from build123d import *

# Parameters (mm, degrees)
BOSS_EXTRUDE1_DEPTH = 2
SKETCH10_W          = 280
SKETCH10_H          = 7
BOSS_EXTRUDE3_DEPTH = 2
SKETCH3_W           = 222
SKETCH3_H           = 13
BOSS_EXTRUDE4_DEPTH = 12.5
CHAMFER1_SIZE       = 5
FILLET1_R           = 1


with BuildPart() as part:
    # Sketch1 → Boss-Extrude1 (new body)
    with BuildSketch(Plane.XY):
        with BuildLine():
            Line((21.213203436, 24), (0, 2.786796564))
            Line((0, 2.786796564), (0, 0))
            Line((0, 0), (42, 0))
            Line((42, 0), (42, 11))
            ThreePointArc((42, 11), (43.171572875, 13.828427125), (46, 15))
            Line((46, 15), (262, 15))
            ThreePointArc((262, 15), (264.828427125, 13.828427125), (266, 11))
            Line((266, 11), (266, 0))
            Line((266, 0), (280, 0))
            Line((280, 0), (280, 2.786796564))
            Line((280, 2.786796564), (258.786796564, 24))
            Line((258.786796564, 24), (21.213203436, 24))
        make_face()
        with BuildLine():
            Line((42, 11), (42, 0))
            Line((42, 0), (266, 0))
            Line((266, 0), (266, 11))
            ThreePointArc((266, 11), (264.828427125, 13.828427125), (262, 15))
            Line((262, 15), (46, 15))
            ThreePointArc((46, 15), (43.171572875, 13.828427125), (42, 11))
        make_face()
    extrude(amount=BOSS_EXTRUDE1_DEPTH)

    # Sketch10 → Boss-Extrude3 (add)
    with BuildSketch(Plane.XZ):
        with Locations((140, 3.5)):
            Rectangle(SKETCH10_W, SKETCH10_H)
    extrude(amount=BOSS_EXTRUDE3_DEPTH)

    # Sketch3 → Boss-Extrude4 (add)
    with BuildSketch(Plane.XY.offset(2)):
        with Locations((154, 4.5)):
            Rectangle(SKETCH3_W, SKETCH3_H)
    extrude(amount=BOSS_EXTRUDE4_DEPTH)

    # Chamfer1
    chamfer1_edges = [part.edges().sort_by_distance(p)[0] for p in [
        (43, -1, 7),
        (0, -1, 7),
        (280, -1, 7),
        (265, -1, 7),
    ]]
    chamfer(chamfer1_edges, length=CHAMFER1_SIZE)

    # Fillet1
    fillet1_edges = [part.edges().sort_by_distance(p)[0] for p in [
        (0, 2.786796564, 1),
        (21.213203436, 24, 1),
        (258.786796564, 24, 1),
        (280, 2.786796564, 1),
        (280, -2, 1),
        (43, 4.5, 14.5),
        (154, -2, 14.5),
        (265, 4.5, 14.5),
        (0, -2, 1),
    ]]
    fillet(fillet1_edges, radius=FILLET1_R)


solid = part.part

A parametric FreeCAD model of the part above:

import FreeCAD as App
import Part
import Sketcher

V = App.Vector


def edges_at(feature, points):
    """Names of the edges that pass closest to the given points."""
    edges = feature.Shape.Edges
    near = lambda p: min(range(len(edges)), key=lambda i: edges[i].distToShape(Part.Vertex(*p))[0])
    return sorted({f"Edge{near(p) + 1}" for p in points})

doc = App.newDocument("Part")
body = doc.addObject("PartDesign::Body", "Body")

# Sketch on XY plane
sketch1 = body.newObject("Sketcher::SketchObject", "Sketch")
sketch1.AttachmentSupport = (doc.getObject("XY_Plane"), [""])
sketch1.MapMode = "FlatFace"
sketch1.addGeometry([
    Part.LineSegment(V(21.2, 24, 0), V(0, 2.8, 0)),  # 0
    Part.LineSegment(V(0, 2.8, 0), V(0, 0, 0)),  # 1
    Part.LineSegment(V(0, 0, 0), V(280, 0, 0)),  # 2
    Part.LineSegment(V(280, 0, 0), V(280, 2.8, 0)),  # 3
    Part.LineSegment(V(280, 2.8, 0), V(258.8, 24, 0)),  # 4
    Part.LineSegment(V(258.8, 24, 0), V(21.2, 24, 0)),  # 5
], False)
sketch1.addConstraint([
    Sketcher.Constraint("Coincident", 0, 2, 1, 1),
    Sketcher.Constraint("Coincident", 1, 2, 2, 1),
    Sketcher.Constraint("Coincident", 2, 2, 3, 1),
    Sketcher.Constraint("Coincident", 3, 2, 4, 1),
    Sketcher.Constraint("Coincident", 4, 2, 5, 1),
    Sketcher.Constraint("Coincident", 5, 2, 0, 1),
    Sketcher.Constraint("Vertical", 1),
    Sketcher.Constraint("Horizontal", 2),
    Sketcher.Constraint("Vertical", 3),
    Sketcher.Constraint("Horizontal", 5),
    Sketcher.Constraint("Coincident", 1, 2, -1, 1),
    Sketcher.Constraint("Perpendicular", 0, 4),
    Sketcher.Constraint("Horizontal", 0, 2, 3, 2),
    Sketcher.Constraint("Equal", 0, 4),
    Sketcher.Constraint("DistanceX", 2, 1, 2, 2, 280.0),
    Sketcher.Constraint("Distance", 0, 30.0),
    Sketcher.Constraint("DistanceY", -1, 1, 4, 2, 24.0),
])
pad1 = body.newObject("PartDesign::Pad", "Pad")
pad1.Profile = sketch1
pad1.Length = 2

# Sketch on XZ plane
sketch2 = body.newObject("Sketcher::SketchObject", "Sketch001")
sketch2.AttachmentSupport = (doc.getObject("XZ_Plane"), [""])
sketch2.MapMode = "FlatFace"
sketch2.addGeometry([
    Part.LineSegment(V(0, 7, 0), V(0, 0, 0)),
    Part.LineSegment(V(0, 0, 0), V(280, 0, 0)),
    Part.LineSegment(V(280, 0, 0), V(280, 7, 0)),
    Part.LineSegment(V(280, 7, 0), V(0, 7, 0)),
], False)
sketch2.addConstraint([
    Sketcher.Constraint("Coincident", 0, 2, 1, 1),
    Sketcher.Constraint("Coincident", 1, 2, 2, 1),
    Sketcher.Constraint("Coincident", 2, 2, 3, 1),
    Sketcher.Constraint("Coincident", 3, 2, 0, 1),
    Sketcher.Constraint("Vertical", 0),
    Sketcher.Constraint("Horizontal", 1),
    Sketcher.Constraint("Vertical", 2),
    Sketcher.Constraint("Horizontal", 3),
    Sketcher.Constraint("Coincident", 0, 2, -1, 1),
    Sketcher.Constraint("DistanceX", 1, 1, 1, 2, 280.0),
    Sketcher.Constraint("DistanceY", 0, 2, 0, 1, 7.0),
])
pad2 = body.newObject("PartDesign::Pad", "Pad001")
pad2.Profile = sketch2
pad2.Length = 2

# Sketch on XY plane
sketch3 = body.newObject("Sketcher::SketchObject", "Sketch002")
sketch3.AttachmentSupport = (doc.getObject("XY_Plane"), [""])
sketch3.MapMode = "FlatFace"
sketch3.AttachmentOffset = App.Placement(V(0, 0, 2), App.Rotation())
sketch3.addGeometry([
    Part.LineSegment(V(43, 11, 0), V(43, -2, 0)),
    Part.LineSegment(V(43, -2, 0), V(265, -2, 0)),
    Part.LineSegment(V(265, -2, 0), V(265, 11, 0)),
    Part.LineSegment(V(265, 11, 0), V(43, 11, 0)),
], False)
sketch3.addConstraint([
    Sketcher.Constraint("Coincident", 0, 2, 1, 1),
    Sketcher.Constraint("Coincident", 1, 2, 2, 1),
    Sketcher.Constraint("Coincident", 2, 2, 3, 1),
    Sketcher.Constraint("Coincident", 3, 2, 0, 1),
    Sketcher.Constraint("Vertical", 0),
    Sketcher.Constraint("Horizontal", 1),
    Sketcher.Constraint("Vertical", 2),
    Sketcher.Constraint("Horizontal", 3),
    Sketcher.Constraint("DistanceX", 1, 1, 1, 2, 222.0),
    Sketcher.Constraint("DistanceY", 0, 2, 0, 1, 13.0),
    Sketcher.Constraint("DistanceX", -1, 1, 0, 2, 43.0),
    Sketcher.Constraint("DistanceY", 0, 2, -1, 1, 2.0),
])
pad3 = body.newObject("PartDesign::Pad", "Pad002")
pad3.Profile = sketch3
pad3.Length = 12.5
doc.recompute()

chamfer = body.newObject("PartDesign::Chamfer", "Chamfer")
chamfer.Base = (pad3, edges_at(pad3, [
    (43, -1, 7),
    (0, -1, 7),
    (280, -1, 7),
    (265, -1, 7),
]))
chamfer.Size = 5
doc.recompute()

fillet = body.newObject("PartDesign::Fillet", "Fillet")
fillet.Base = (chamfer, edges_at(chamfer, [
    (0, 2.787, 1),
    (21.213, 24, 1),
    (258.787, 24, 1),
    (280, 2.787, 1),
    (280, -2, 1),
    (43, 4.5, 14.5),
    (154, -2, 14.5),
    (265, 4.5, 14.5),
    (0, -2, 1),
]))
fillet.Radius = 1

doc.recompute()
